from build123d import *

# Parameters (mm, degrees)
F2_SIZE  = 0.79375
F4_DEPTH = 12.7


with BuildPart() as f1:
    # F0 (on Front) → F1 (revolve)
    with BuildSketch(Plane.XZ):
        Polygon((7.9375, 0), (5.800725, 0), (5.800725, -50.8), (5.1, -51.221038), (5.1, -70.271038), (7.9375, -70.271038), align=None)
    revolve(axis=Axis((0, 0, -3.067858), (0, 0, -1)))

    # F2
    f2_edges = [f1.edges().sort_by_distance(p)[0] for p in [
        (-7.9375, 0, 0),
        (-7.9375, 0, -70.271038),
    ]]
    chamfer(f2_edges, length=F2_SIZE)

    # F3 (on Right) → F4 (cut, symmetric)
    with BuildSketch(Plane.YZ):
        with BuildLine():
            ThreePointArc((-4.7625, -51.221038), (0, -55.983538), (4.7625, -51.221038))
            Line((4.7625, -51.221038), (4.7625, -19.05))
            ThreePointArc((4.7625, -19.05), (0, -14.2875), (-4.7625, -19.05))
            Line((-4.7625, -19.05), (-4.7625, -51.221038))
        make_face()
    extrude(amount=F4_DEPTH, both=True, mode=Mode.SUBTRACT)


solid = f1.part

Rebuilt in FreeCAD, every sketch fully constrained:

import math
import FreeCAD as App
import Part
import Sketcher
Q = App.Units.Quantity


def edges_at(feature, points):
    """Names of the edges that pass closest to the given points."""
    edges = feature.Shape.Edges
    near = lambda p: min(range(len(edges)), key=lambda i: edges[i].distToShape(Part.Vertex(*p))[0])
    return sorted({f"Edge{near(p) + 1}" for p in points})

doc = App.newDocument("Part")
params = doc.addObject("Spreadsheet::Sheet", "Params")
for row, (alias, value) in enumerate([
    ("sketch1_height", "2 in"),
    ("sketch1_height2", "0.75 in"),
    ("revolution_angle", "360 deg"),
    ("chamfer_size", "0.03125 in"),
    ("sketch2_radius", "0.1875 in"),
    ("pocket1_length", "1 in"),
], start=1):
    params.set(f"A{row}", alias)
    params.set(f"B{row}", "=" + value)
    params.setAlias(f"B{row}", alias)

body = doc.addObject("PartDesign::Body", "Body")

sketch1 = body.newObject("Sketcher::SketchObject", "Sketch")
sketch1.AttachmentSupport = (doc.getObject("XZ_Plane"), [""])
sketch1.MapMode = "FlatFace"
sketch1.addGeometry([
    Part.LineSegment(App.Vector(7.9, 0, 0), App.Vector(5.8, 0, 0)),
    Part.LineSegment(App.Vector(5.8, 0, 0), App.Vector(5.8, -50.8, 0)),
    Part.LineSegment(App.Vector(5.8, -50.8, 0), App.Vector(5.1, -51.2, 0)),
    Part.LineSegment(App.Vector(5.1, -51.2, 0), App.Vector(5.1, -70.3, 0)),
    Part.LineSegment(App.Vector(5.1, -70.3, 0), App.Vector(7.9, -70.3, 0)),
    Part.LineSegment(App.Vector(7.9, -70.3, 0), App.Vector(7.9, 0, 0)),
], False)
sketch1.addConstraint([
    Sketcher.Constraint("Coincident", 0, 2, 1, 1),
    Sketcher.Constraint("Coincident", 1, 2, 2, 1),
    Sketcher.Constraint("Coincident", 2, 2, 3, 1),
    Sketcher.Constraint("Coincident", 3, 2, 4, 1),
    Sketcher.Constraint("Coincident", 4, 2, 5, 1),
    Sketcher.Constraint("Coincident", 5, 2, 0, 1),
    Sketcher.Constraint("Horizontal", 0),
    Sketcher.Constraint("Vertical", 1),
    Sketcher.Constraint("Vertical", 3),
    Sketcher.Constraint("Horizontal", 4),
    Sketcher.Constraint("Vertical", 5),
    Sketcher.Constraint("PointOnObject", 0, 2, -1),
    Sketcher.Constraint("DistanceY", 1, 2, 1, 1, Q("2 in")),
    Sketcher.Constraint("Angle", 2, Q("-149.000003 deg")),
    Sketcher.Constraint("DistanceY", 3, 2, 3, 1, Q("0.75 in")),
    Sketcher.Constraint("DistanceX", -1, 1, 4, 2, Q("0.3125 in")),
    Sketcher.Constraint("DistanceX", 4, 1, 4, 2, Q("2.8375 mm")),
    Sketcher.Constraint("DistanceY", 5, 1, 5, 2, Q("70.271038 mm")),
])
sketch1.setExpression("Constraints[12]", "Params.sketch1_height")
sketch1.setExpression("Constraints[14]", "Params.sketch1_height2")
revolution = body.newObject("PartDesign::Revolution", "Revolution")
revolution.Profile = sketch1
revolution.ReferenceAxis = (sketch1, ["V_Axis"])
revolution.setExpression("Angle", "Params.revolution_angle")
doc.recompute()

chamfer = body.newObject("PartDesign::Chamfer", "Chamfer")
chamfer.Base = (revolution, edges_at(revolution, [(-7.938, 0, 0), (-7.938, 0, -70.271)]))
chamfer.setExpression("Size", "Params.chamfer_size")

sketch2 = body.newObject("Sketcher::SketchObject", "Sketch001")
sketch2.AttachmentSupport = (doc.getObject("YZ_Plane"), [""])
sketch2.MapMode = "FlatFace"
sketch2.addGeometry([
    Part.ArcOfCircle(Part.Circle(App.Vector(0, -51.2, 0), App.Vector(0, 0, 1), 4.8), math.radians(180), math.radians(360)),
    Part.LineSegment(App.Vector(4.8, -51.2, 0), App.Vector(4.8, -19.1, 0)),
    Part.ArcOfCircle(Part.Circle(App.Vector(0, -19.1, 0), App.Vector(0, 0, 1), 4.8), math.radians(0), math.radians(180)),
    Part.LineSegment(App.Vector(-4.8, -19.1, 0), App.Vector(-4.8, -51.2, 0)),
], False)
sketch2.addConstraint([
    Sketcher.Constraint("Tangent", 0, 2, 1, 1),
    Sketcher.Constraint("Tangent", 1, 2, 2, 1),
    Sketcher.Constraint("Tangent", 2, 2, 3, 1),
    Sketcher.Constraint("Tangent", 3, 2, 0, 1),
    Sketcher.Constraint("Vertical", 1),
    Sketcher.Constraint("Vertical", 3),
    Sketcher.Constraint("PointOnObject", 0, 3, -2),
    Sketcher.Constraint("Radius", 0, Q("0.1875 in")),
    Sketcher.Constraint("DistanceY", 2, 3, -1, 1, Q("0.75 in")),
    Sketcher.Constraint("DistanceY", 1, 1, 1, 2, Q("32.171038 mm")),
])
sketch2.setExpression("Constraints[7]", "Params.sketch2_radius")
pocket1 = body.newObject("PartDesign::Pocket", "Pocket")
pocket1.Profile = sketch2
pocket1.setExpression("Length", "Params.pocket1_length")
pocket1.Midplane = True

doc.recompute()
